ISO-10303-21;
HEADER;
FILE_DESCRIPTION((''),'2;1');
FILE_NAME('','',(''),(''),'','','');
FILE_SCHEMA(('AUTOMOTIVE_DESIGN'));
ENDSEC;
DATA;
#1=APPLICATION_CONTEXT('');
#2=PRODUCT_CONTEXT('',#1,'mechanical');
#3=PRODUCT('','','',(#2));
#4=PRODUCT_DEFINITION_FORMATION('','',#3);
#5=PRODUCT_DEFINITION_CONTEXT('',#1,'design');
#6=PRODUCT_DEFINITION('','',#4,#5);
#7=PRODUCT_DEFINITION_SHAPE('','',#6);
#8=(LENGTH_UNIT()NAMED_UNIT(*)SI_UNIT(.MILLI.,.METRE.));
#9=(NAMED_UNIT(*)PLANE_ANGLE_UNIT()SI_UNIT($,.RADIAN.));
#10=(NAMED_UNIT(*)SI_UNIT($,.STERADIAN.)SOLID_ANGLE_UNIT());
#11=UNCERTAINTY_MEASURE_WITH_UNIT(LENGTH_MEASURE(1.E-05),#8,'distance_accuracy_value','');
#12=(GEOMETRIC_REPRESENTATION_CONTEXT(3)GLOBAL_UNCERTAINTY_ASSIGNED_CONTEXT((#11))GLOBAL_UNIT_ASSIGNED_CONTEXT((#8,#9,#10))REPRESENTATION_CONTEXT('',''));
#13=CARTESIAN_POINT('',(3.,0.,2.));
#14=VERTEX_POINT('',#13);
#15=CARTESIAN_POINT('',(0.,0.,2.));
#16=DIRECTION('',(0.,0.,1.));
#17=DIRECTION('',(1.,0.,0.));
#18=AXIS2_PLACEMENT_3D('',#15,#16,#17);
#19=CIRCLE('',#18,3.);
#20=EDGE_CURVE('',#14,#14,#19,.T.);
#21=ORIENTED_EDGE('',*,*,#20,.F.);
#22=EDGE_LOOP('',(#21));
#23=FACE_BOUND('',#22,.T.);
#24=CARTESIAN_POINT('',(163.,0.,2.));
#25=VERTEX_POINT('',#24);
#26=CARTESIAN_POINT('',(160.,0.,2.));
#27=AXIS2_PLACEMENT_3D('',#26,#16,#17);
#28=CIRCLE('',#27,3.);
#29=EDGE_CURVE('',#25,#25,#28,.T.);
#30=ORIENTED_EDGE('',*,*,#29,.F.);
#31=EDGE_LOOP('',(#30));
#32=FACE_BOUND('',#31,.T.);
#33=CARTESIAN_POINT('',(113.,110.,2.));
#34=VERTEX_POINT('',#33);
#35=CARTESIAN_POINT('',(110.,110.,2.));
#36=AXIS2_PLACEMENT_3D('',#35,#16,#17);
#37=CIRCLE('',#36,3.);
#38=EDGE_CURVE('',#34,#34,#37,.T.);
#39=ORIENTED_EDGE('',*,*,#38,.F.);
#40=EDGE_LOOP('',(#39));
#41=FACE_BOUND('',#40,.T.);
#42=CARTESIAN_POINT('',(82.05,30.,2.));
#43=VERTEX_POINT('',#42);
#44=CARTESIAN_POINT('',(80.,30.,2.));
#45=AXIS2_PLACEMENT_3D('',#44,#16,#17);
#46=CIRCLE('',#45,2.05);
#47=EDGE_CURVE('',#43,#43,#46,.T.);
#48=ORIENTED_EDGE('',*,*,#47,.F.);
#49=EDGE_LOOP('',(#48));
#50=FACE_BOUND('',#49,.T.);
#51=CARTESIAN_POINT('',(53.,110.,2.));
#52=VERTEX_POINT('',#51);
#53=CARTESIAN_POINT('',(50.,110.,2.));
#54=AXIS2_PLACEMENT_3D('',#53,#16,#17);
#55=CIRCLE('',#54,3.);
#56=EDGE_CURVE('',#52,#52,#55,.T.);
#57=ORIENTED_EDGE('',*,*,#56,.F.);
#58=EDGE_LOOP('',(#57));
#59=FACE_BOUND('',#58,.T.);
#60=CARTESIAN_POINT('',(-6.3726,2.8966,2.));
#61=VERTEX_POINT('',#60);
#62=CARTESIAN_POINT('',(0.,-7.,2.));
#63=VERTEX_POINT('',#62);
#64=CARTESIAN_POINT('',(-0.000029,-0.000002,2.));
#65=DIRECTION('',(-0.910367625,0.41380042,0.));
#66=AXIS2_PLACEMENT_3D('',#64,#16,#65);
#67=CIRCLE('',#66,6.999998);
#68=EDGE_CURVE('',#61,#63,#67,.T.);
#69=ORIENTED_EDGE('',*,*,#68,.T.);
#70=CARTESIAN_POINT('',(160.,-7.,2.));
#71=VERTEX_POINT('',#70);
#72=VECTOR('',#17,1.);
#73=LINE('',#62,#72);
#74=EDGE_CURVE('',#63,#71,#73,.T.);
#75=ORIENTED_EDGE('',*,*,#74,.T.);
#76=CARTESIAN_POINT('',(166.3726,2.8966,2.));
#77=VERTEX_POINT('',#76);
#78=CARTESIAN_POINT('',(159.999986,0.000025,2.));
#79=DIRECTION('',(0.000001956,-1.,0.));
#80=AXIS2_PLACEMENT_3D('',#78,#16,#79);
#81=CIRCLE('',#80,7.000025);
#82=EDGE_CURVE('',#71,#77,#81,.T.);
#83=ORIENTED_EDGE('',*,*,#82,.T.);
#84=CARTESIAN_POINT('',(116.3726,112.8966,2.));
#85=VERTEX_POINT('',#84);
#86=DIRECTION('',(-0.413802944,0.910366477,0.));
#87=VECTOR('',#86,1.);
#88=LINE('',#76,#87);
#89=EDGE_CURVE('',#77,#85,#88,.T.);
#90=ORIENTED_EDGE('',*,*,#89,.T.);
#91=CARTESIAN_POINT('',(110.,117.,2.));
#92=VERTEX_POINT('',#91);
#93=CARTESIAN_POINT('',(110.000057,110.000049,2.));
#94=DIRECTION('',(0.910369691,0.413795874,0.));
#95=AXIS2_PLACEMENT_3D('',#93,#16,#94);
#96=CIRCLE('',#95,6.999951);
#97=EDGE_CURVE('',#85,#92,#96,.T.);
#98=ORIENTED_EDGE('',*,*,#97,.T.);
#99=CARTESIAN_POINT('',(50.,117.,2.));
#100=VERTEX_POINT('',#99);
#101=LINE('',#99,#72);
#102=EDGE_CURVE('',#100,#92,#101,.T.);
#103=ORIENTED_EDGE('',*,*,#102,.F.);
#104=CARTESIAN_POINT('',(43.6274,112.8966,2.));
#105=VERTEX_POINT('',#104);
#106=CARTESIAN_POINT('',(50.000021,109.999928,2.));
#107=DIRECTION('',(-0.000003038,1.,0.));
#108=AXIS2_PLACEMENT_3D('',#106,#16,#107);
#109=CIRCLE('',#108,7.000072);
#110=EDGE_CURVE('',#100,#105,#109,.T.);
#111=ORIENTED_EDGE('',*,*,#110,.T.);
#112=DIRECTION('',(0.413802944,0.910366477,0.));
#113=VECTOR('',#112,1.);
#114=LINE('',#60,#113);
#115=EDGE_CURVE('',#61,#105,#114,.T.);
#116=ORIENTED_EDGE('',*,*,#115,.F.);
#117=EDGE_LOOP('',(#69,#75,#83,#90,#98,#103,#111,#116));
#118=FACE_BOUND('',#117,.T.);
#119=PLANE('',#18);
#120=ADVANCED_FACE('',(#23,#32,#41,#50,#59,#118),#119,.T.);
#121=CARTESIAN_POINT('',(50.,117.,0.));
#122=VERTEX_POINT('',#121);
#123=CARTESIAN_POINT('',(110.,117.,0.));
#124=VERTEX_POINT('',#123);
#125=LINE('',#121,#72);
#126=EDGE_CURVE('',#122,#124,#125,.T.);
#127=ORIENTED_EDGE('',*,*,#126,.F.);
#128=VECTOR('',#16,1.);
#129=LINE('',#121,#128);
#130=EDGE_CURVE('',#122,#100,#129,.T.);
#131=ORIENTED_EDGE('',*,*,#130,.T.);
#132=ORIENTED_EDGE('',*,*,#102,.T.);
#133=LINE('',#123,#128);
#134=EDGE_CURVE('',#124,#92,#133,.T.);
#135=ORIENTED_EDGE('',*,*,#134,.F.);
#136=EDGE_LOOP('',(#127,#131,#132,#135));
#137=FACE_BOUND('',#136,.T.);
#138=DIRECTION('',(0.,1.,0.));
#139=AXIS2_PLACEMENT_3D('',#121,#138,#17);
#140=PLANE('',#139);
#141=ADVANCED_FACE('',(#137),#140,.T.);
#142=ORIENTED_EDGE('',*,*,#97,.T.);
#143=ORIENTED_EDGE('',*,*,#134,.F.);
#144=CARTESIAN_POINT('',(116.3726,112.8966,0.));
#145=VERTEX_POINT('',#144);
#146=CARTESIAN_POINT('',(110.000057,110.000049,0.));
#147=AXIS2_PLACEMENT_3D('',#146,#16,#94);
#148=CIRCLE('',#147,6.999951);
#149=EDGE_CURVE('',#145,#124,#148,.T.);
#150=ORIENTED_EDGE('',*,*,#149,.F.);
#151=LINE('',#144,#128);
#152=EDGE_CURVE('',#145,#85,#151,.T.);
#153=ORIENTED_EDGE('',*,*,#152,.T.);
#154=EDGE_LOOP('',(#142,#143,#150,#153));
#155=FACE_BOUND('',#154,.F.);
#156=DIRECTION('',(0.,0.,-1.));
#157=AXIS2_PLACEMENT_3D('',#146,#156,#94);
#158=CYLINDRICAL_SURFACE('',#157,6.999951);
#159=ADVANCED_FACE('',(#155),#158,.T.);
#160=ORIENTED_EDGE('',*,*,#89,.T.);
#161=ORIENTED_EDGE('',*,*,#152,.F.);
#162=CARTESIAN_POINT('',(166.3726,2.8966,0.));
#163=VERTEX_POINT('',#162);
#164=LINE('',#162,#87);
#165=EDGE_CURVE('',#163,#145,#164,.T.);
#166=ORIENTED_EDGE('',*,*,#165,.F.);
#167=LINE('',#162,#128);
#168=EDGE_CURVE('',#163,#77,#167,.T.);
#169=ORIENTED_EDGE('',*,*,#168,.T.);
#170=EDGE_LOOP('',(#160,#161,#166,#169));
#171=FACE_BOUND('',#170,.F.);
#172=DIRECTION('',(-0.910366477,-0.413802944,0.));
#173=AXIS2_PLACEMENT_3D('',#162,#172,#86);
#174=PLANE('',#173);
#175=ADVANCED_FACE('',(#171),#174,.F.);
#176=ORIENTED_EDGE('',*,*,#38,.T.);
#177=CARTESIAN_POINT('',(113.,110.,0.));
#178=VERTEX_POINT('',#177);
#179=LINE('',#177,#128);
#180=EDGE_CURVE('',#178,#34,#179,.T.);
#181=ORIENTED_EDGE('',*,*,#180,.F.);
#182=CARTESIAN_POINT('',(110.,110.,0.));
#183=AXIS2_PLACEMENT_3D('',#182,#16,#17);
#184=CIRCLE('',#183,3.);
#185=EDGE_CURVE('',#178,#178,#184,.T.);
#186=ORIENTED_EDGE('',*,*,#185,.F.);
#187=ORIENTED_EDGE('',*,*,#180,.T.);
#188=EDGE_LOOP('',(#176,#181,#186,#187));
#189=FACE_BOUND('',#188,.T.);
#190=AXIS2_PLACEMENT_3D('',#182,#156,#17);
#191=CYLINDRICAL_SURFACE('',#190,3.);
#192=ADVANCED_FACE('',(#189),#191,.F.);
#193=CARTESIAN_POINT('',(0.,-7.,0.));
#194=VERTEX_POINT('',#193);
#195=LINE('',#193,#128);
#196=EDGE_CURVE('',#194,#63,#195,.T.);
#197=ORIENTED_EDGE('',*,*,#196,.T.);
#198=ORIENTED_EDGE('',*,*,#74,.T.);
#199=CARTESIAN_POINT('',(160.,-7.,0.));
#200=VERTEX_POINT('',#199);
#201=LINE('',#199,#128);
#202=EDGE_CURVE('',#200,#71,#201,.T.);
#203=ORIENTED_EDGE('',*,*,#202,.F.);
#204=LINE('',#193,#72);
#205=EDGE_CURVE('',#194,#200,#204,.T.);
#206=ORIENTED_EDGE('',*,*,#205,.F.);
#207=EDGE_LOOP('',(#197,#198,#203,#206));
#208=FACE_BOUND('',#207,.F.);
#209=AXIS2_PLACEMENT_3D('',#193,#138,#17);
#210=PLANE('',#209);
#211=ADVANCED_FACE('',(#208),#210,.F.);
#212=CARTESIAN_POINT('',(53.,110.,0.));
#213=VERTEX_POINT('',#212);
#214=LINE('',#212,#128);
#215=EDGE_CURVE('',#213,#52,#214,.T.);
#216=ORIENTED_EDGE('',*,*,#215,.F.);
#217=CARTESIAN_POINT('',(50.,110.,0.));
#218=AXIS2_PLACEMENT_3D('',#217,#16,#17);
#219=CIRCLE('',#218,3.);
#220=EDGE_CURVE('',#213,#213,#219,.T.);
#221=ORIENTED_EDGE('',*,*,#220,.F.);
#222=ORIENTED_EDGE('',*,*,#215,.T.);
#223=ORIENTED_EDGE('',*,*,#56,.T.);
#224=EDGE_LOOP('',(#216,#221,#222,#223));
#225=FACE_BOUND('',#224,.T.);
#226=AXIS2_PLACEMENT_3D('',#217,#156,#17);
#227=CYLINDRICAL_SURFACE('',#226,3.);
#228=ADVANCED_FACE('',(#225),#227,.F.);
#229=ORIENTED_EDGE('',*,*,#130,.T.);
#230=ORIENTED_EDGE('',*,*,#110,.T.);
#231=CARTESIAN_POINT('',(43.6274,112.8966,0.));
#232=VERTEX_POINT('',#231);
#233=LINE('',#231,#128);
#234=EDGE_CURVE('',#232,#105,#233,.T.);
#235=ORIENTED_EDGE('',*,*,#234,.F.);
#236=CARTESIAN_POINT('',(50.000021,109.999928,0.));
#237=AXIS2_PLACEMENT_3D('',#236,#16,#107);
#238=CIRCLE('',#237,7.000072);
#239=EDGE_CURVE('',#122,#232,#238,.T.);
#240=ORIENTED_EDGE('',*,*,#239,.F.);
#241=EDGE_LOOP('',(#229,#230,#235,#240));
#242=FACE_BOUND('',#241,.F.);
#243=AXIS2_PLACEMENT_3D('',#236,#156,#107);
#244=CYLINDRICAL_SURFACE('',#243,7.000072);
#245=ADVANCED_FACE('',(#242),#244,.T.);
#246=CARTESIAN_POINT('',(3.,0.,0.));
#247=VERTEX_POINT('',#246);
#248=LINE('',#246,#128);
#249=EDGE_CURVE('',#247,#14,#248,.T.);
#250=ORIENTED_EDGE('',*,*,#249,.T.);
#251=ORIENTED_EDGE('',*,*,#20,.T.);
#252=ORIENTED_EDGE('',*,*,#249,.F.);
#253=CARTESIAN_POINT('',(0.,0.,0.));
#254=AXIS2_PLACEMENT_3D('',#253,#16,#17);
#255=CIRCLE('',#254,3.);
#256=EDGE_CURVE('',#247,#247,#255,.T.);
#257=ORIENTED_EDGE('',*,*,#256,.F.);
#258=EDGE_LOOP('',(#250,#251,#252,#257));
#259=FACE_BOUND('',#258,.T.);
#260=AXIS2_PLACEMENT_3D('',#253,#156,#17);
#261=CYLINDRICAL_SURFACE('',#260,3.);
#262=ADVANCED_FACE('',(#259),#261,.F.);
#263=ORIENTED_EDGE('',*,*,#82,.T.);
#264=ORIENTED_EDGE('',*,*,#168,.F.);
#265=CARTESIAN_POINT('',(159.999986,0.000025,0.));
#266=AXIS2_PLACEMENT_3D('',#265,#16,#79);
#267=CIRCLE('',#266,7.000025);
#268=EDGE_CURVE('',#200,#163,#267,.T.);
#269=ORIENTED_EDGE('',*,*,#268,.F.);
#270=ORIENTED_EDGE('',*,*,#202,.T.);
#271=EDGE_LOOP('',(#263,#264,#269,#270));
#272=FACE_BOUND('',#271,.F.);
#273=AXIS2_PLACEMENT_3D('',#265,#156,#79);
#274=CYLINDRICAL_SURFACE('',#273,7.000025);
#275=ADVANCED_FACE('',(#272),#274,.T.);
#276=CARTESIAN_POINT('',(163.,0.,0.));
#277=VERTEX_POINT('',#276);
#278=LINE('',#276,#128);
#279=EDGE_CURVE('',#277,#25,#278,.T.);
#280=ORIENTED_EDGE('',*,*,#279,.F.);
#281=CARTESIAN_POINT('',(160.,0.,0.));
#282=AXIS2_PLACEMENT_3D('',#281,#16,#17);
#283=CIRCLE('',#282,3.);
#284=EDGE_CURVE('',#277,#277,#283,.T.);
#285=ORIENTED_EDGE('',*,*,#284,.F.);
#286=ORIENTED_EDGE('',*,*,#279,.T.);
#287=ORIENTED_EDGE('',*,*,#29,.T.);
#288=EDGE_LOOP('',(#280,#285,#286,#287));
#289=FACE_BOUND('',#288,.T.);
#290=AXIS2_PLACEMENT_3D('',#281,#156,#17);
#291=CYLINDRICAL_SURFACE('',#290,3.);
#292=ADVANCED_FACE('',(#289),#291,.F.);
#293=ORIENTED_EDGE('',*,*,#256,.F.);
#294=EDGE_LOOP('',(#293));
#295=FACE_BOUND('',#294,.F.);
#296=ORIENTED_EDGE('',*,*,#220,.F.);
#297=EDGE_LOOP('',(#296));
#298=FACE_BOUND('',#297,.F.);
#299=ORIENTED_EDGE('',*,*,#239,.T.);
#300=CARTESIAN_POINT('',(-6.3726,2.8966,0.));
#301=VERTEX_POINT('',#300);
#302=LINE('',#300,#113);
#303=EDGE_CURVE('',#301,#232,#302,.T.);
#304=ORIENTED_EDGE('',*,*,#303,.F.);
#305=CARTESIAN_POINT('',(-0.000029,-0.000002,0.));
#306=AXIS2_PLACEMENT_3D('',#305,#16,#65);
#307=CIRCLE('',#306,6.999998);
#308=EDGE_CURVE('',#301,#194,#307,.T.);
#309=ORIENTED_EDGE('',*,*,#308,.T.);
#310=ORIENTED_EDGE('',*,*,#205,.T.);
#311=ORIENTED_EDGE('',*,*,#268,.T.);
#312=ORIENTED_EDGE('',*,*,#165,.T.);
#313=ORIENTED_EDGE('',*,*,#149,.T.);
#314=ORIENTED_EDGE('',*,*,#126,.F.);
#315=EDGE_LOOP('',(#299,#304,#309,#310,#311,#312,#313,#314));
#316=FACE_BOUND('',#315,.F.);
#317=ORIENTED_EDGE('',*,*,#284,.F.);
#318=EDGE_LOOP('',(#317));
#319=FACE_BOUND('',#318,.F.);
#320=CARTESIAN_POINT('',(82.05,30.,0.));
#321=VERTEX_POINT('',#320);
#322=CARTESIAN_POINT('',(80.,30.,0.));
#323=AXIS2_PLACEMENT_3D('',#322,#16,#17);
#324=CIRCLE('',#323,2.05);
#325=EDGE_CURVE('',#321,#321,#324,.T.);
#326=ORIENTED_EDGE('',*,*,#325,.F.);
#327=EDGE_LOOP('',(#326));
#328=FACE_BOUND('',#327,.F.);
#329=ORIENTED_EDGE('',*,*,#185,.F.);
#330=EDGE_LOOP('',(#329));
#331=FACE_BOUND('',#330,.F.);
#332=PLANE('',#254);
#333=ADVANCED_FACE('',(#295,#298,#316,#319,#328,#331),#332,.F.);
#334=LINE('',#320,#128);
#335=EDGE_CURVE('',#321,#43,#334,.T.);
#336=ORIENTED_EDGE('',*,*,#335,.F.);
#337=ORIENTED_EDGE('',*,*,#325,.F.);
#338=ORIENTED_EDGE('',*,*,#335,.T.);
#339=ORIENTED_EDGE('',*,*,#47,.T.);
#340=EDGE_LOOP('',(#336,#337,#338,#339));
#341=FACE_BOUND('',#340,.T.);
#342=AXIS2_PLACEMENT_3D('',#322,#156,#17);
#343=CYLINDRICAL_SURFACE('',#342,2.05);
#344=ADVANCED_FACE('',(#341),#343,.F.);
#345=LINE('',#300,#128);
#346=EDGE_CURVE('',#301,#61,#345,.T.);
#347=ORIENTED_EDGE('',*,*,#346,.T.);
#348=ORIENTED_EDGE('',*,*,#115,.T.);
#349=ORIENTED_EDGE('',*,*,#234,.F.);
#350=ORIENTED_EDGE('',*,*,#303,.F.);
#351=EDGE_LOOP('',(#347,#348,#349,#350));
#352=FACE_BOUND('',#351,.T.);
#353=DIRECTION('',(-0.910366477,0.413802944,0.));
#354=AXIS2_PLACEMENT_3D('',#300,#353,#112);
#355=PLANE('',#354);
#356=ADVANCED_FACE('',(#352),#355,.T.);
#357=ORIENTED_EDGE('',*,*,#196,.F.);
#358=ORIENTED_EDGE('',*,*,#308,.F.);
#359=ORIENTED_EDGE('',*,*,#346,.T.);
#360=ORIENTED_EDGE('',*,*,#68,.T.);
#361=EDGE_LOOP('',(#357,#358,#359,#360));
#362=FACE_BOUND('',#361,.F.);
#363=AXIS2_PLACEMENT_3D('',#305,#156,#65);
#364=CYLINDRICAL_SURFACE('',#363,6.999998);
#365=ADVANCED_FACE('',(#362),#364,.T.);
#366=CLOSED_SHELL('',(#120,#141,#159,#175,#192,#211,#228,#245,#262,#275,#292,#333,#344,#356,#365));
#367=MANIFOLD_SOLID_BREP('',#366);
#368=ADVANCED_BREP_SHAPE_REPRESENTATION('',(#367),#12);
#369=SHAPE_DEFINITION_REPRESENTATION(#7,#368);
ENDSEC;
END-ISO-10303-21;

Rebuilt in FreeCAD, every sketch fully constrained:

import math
import FreeCAD as App
import Part
import Sketcher

doc = App.newDocument("Part")
body = doc.addObject("PartDesign::Body", "Body")

# Sketch on XY plane
sketch1 = body.newObject("Sketcher::SketchObject", "Sketch")
sketch1.AttachmentSupport = (doc.getObject("XY_Plane"), [""])
sketch1.MapMode = "FlatFace"
sketch1.addGeometry(Part.LineSegment(App.Vector(110, 117, 0), App.Vector(50, 117, 0)), False)
sketch1.addGeometry(Part.ArcOfCircle(Part.Circle(App.Vector(50, 110, 0), App.Vector(0, 0, 1), 7), math.radians(90), math.radians(156)), False)
sketch1.addGeometry(Part.LineSegment(App.Vector(43.6, 112.9, 0), App.Vector(-6.4, 2.9, 0)), False)
sketch1.addGeometry(Part.ArcOfCircle(Part.Circle(App.Vector(0, 0, 0), App.Vector(0, 0, 1), 7), math.radians(156), math.radians(270)), False)
sketch1.addGeometry(Part.LineSegment(App.Vector(0, -7, 0), App.Vector(160, -7, 0)), False)
sketch1.addGeometry(Part.ArcOfCircle(Part.Circle(App.Vector(160, 0, 0), App.Vector(0, 0, 1), 7), math.radians(-90), math.radians(24)), False)
sketch1.addGeometry(Part.LineSegment(App.Vector(166.4, 2.9, 0), App.Vector(116.4, 112.9, 0)), False)
sketch1.addGeometry(Part.ArcOfCircle(Part.Circle(App.Vector(110, 110, 0), App.Vector(0, 0, 1), 7), math.radians(24), math.radians(90)), False)
sketch1.addGeometry(Part.Circle(App.Vector(0, 0, 0), App.Vector(0, 0, 1), 3), False)
sketch1.addGeometry(Part.Circle(App.Vector(160, 0, 0), App.Vector(0, 0, 1), 3), False)
sketch1.addGeometry(Part.Circle(App.Vector(80, 30, 0), App.Vector(0, 0, 1), 2), False)
sketch1.addGeometry(Part.Circle(App.Vector(50, 110, 0), App.Vector(0, 0, 1), 3), False)
sketch1.addGeometry(Part.Circle(App.Vector(110, 110, 0), App.Vector(0, 0, 1), 3), False)
sketch1.addConstraint(Sketcher.Constraint("Tangent", 0, 2, 1, 1))
sketch1.addConstraint(Sketcher.Constraint("Tangent", 1, 2, 2, 1))
sketch1.addConstraint(Sketcher.Constraint("Tangent", 2, 2, 3, 1))
sketch1.addConstraint(Sketcher.Constraint("Tangent", 3, 2, 4, 1))
sketch1.addConstraint(Sketcher.Constraint("Tangent", 4, 2, 5, 1))
sketch1.addConstraint(Sketcher.Constraint("Tangent", 5, 2, 6, 1))
sketch1.addConstraint(Sketcher.Constraint("Tangent", 6, 2, 7, 1))
sketch1.addConstraint(Sketcher.Constraint("Tangent", 7, 2, 0, 1))
sketch1.addConstraint(Sketcher.Constraint("Horizontal", 0))
sketch1.addConstraint(Sketcher.Constraint("Horizontal", 4))
sketch1.addConstraint(Sketcher.Constraint("Coincident", 3, 3, -1, 1))
sketch1.addConstraint(Sketcher.Constraint("Coincident", 8, 3, -1, 1))
sketch1.addConstraint(Sketcher.Constraint("Coincident", 9, 3, 5, 3))
sketch1.addConstraint(Sketcher.Constraint("Coincident", 11, 3, 1, 3))
sketch1.addConstraint(Sketcher.Constraint("Coincident", 12, 3, 7, 3))
sketch1.addConstraint(Sketcher.Constraint("Equal", 1, 3))
sketch1.addConstraint(Sketcher.Constraint("Equal", 3, 5))
sketch1.addConstraint(Sketcher.Constraint("Equal", 5, 7))
sketch1.addConstraint(Sketcher.Constraint("Equal", 8, 9))
sketch1.addConstraint(Sketcher.Constraint("Equal", 9, 11))
sketch1.addConstraint(Sketcher.Constraint("Equal", 11, 12))
sketch1.addConstraint(Sketcher.Constraint("Horizontal", 2, 2, 5, 2))
sketch1.addConstraint(Sketcher.Constraint("Diameter", 8, 6.0))
sketch1.addConstraint(Sketcher.Constraint("Radius", 1, 7.0))
sketch1.addConstraint(Sketcher.Constraint("Diameter", 10, 4.1))
sketch1.addConstraint(Sketcher.Constraint("DistanceX", 0, 2, 0, 1, 60.0))
sketch1.addConstraint(Sketcher.Constraint("DistanceX", 4, 1, 4, 2, 160.0))
sketch1.addConstraint(Sketcher.Constraint("DistanceY", -1, 1, 1, 3, 110.0))
sketch1.addConstraint(Sketcher.Constraint("DistanceY", -1, 1, 10, 3, 30.0))
sketch1.addConstraint(Sketcher.Constraint("DistanceX", 1, 3, 10, 3, 30.0))
pad1 = body.newObject("PartDesign::Pad", "Pad")
pad1.Profile = sketch1
pad1.Length = 2

doc.recompute()
